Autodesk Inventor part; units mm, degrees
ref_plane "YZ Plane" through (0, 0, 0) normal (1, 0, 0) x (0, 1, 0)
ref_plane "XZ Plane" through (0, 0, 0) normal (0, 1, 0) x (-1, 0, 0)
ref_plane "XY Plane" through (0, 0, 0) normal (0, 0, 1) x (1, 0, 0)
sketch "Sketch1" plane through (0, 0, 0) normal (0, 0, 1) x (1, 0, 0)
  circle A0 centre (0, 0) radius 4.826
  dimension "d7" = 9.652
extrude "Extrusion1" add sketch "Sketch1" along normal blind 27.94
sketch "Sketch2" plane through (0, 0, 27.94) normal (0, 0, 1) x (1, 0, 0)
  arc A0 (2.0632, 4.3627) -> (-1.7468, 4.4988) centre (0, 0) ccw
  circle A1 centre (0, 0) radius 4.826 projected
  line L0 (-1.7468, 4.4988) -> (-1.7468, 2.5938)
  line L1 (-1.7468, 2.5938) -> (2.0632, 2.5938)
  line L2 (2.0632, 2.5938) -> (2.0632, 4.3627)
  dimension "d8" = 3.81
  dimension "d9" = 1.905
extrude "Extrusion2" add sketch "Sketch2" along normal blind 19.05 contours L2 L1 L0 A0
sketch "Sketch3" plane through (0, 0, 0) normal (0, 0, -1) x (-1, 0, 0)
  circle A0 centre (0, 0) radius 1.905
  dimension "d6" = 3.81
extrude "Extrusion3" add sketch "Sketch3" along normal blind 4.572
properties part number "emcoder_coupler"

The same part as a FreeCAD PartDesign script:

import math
import FreeCAD as App
import Part
import Sketcher
Q = App.Units.Quantity

doc = App.newDocument("Part")
body = doc.addObject("PartDesign::Body", "Body")

# Sketch on XY plane
sketch1 = body.newObject("Sketcher::SketchObject", "Sketch")
sketch1.AttachmentSupport = (doc.getObject("XY_Plane"), [""])
sketch1.MapMode = "FlatFace"
sketch1.addGeometry(Part.Circle(App.Vector(0, 0, 0), App.Vector(0, 0, 1), 4.826), False)
sketch1.addConstraint([
    Sketcher.Constraint("Coincident", 0, 3, -1, 1),
    Sketcher.Constraint("Diameter", 0, Q("0.38 in")),
])
pad1 = body.newObject("PartDesign::Pad", "Pad")
pad1.Profile = sketch1
pad1.Length = Q("1.1 in")

# Sketch on XY plane
sketch2 = body.newObject("Sketcher::SketchObject", "Sketch001")
sketch2.AttachmentSupport = (doc.getObject("XY_Plane"), [""])
sketch2.MapMode = "FlatFace"
sketch2.AttachmentOffset = App.Placement(App.Vector(0, 0, 1.1 * 25.4), App.Rotation())
sketch2.addGeometry([
    Part.LineSegment(App.Vector(2.0632, 2.5938, 0), App.Vector(2.0632, 4.3627, 0)),
    Part.ArcOfCircle(Part.Circle(App.Vector(0, 0, 0), App.Vector(0, 0, 1), 4.826), math.radians(64.689683), math.radians(111.220261)),
    Part.LineSegment(App.Vector(-1.7468, 4.4988, 0), App.Vector(-1.7468, 2.5938, 0)),
    Part.LineSegment(App.Vector(-1.7468, 2.5938, 0), App.Vector(2.0632, 2.5938, 0)),
], False)
sketch2.addConstraint([
    Sketcher.Constraint("Coincident", 0, 2, 1, 1),
    Sketcher.Constraint("Coincident", 1, 2, 2, 1),
    Sketcher.Constraint("Coincident", 2, 2, 3, 1),
    Sketcher.Constraint("Coincident", 3, 2, 0, 1),
    Sketcher.Constraint("Vertical", 0),
    Sketcher.Constraint("Vertical", 2),
    Sketcher.Constraint("Horizontal", 3),
    Sketcher.Constraint("Coincident", 1, 3, -1, 1),
    Sketcher.Constraint("DistanceX", 3, 1, 3, 2, Q("0.15 in")),
    Sketcher.Constraint("DistanceY", 2, 2, 2, 1, Q("0.075 in")),
    Sketcher.Constraint("Radius", 1, Q("0.19 in")),
    Sketcher.Constraint("DistanceY", 0, 1, 0, 2, Q("1.769 mm")),
])
pad2 = body.newObject("PartDesign::Pad", "Pad001")
pad2.Profile = sketch2
pad2.Length = Q("0.75 in")

# Sketch on XY plane
sketch3 = body.newObject("Sketcher::SketchObject", "Sketch002")
sketch3.AttachmentSupport = (doc.getObject("XY_Plane"), [""])
sketch3.MapMode = "FlatFace"
sketch3.addGeometry(Part.Circle(App.Vector(0, 0, 0), App.Vector(0, 0, 1), 1.905), False)
sketch3.addConstraint([
    Sketcher.Constraint("Coincident", 0, 3, -1, 1),
    Sketcher.Constraint("Diameter", 0, Q("0.15 in")),
])
pad3 = body.newObject("PartDesign::Pad", "Pad002")
pad3.Profile = sketch3
pad3.Length = Q("0.18 in")
pad3.Reversed = True

doc.recompute()
